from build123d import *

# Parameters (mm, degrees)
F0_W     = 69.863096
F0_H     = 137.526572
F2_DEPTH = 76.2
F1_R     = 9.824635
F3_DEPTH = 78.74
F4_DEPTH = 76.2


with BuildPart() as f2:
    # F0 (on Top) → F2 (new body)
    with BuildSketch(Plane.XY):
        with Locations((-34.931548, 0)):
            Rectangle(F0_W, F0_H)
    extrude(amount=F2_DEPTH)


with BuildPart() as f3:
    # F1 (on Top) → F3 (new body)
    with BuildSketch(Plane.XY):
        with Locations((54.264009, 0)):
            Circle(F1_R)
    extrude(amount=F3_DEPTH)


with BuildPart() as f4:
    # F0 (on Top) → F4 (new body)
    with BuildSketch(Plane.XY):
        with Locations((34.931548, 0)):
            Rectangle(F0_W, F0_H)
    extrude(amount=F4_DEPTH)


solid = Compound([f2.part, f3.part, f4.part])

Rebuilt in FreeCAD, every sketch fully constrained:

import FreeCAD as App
import Part
import Sketcher

V = App.Vector
Q = App.Units.Quantity


def add_polygon(sketch, points):
    """Adds a closed chain of lines whose ends are joined by coincident constraints."""
    first, n = sketch.GeometryCount, len(points)
    for a, b in zip(points, points[1:] + points[:1]):
        sketch.addGeometry(Part.LineSegment(App.Vector(*a, 0), App.Vector(*b, 0)), False)
    for i in range(n):
        sketch.addConstraint(Sketcher.Constraint("Coincident", first + i, 2, first + (i + 1) % n, 1))

doc = App.newDocument("Part")
body = doc.addObject("PartDesign::Body", "Body")

sketch1 = body.newObject("Sketcher::SketchObject", "Sketch")
sketch1.AttachmentSupport = (doc.getObject("XY_Plane"), [""])
sketch1.MapMode = "FlatFace"
add_polygon(sketch1, [(-70, 69), (-70, -69), (0, -69), (0, 69)])
sketch1.addConstraint(Sketcher.Constraint("Vertical", 0))
sketch1.addConstraint(Sketcher.Constraint("Horizontal", 1))
sketch1.addConstraint(Sketcher.Constraint("Vertical", 2))
sketch1.addConstraint(Sketcher.Constraint("Horizontal", 3))
sketch1.addConstraint(Sketcher.Constraint("Symmetric", 1, 2, 2, 2, -1, 1))
sketch1.addConstraint(Sketcher.Constraint("DistanceY", 0, 2, 0, 1, Q("137.526572 mm")))
sketch1.addConstraint(Sketcher.Constraint("DistanceX", 1, 1, 1, 2, Q("69.863096 mm")))
pad1 = body.newObject("PartDesign::Pad", "Pad")
pad1.Profile = sketch1
pad1.Length = Q("3 in")
body2 = doc.addObject("PartDesign::Body", "Body001")

sketch2 = body2.newObject("Sketcher::SketchObject", "Sketch001")
sketch2.AttachmentSupport = (doc.getObject("XY_Plane001"), [""])
sketch2.MapMode = "FlatFace"
sketch2.addGeometry(Part.Circle(V(54, 0, 0), V(0, 0, 1), 10), False)
sketch2.addConstraint(Sketcher.Constraint("PointOnObject", 0, 3, -1))
sketch2.addConstraint(Sketcher.Constraint("Diameter", 0, Q("19.64927 mm")))
sketch2.addConstraint(Sketcher.Constraint("DistanceX", -1, 1, 0, 3, Q("54.264009 mm")))
pad2 = body2.newObject("PartDesign::Pad", "Pad001")
pad2.Profile = sketch2
pad2.Length = Q("3.1 in")
body3 = doc.addObject("PartDesign::Body", "Body002")

sketch3 = body3.newObject("Sketcher::SketchObject", "Sketch002")
sketch3.AttachmentSupport = (doc.getObject("XY_Plane002"), [""])
sketch3.MapMode = "FlatFace"
add_polygon(sketch3, [(0, 69), (0, -69), (70, -69), (70, 69)])
sketch3.addConstraint(Sketcher.Constraint("Vertical", 0))
sketch3.addConstraint(Sketcher.Constraint("Horizontal", 1))
sketch3.addConstraint(Sketcher.Constraint("Vertical", 2))
sketch3.addConstraint(Sketcher.Constraint("Horizontal", 3))
sketch3.addConstraint(Sketcher.Constraint("Symmetric", 0, 2, 3, 2, -1, 1))
sketch3.addConstraint(Sketcher.Constraint("DistanceY", 0, 2, 0, 1, Q("137.526572 mm")))
sketch3.addConstraint(Sketcher.Constraint("DistanceX", 1, 1, 1, 2, Q("69.863096 mm")))
pad3 = body3.newObject("PartDesign::Pad", "Pad002")
pad3.Profile = sketch3
pad3.Length = Q("3 in")

doc.recompute()
